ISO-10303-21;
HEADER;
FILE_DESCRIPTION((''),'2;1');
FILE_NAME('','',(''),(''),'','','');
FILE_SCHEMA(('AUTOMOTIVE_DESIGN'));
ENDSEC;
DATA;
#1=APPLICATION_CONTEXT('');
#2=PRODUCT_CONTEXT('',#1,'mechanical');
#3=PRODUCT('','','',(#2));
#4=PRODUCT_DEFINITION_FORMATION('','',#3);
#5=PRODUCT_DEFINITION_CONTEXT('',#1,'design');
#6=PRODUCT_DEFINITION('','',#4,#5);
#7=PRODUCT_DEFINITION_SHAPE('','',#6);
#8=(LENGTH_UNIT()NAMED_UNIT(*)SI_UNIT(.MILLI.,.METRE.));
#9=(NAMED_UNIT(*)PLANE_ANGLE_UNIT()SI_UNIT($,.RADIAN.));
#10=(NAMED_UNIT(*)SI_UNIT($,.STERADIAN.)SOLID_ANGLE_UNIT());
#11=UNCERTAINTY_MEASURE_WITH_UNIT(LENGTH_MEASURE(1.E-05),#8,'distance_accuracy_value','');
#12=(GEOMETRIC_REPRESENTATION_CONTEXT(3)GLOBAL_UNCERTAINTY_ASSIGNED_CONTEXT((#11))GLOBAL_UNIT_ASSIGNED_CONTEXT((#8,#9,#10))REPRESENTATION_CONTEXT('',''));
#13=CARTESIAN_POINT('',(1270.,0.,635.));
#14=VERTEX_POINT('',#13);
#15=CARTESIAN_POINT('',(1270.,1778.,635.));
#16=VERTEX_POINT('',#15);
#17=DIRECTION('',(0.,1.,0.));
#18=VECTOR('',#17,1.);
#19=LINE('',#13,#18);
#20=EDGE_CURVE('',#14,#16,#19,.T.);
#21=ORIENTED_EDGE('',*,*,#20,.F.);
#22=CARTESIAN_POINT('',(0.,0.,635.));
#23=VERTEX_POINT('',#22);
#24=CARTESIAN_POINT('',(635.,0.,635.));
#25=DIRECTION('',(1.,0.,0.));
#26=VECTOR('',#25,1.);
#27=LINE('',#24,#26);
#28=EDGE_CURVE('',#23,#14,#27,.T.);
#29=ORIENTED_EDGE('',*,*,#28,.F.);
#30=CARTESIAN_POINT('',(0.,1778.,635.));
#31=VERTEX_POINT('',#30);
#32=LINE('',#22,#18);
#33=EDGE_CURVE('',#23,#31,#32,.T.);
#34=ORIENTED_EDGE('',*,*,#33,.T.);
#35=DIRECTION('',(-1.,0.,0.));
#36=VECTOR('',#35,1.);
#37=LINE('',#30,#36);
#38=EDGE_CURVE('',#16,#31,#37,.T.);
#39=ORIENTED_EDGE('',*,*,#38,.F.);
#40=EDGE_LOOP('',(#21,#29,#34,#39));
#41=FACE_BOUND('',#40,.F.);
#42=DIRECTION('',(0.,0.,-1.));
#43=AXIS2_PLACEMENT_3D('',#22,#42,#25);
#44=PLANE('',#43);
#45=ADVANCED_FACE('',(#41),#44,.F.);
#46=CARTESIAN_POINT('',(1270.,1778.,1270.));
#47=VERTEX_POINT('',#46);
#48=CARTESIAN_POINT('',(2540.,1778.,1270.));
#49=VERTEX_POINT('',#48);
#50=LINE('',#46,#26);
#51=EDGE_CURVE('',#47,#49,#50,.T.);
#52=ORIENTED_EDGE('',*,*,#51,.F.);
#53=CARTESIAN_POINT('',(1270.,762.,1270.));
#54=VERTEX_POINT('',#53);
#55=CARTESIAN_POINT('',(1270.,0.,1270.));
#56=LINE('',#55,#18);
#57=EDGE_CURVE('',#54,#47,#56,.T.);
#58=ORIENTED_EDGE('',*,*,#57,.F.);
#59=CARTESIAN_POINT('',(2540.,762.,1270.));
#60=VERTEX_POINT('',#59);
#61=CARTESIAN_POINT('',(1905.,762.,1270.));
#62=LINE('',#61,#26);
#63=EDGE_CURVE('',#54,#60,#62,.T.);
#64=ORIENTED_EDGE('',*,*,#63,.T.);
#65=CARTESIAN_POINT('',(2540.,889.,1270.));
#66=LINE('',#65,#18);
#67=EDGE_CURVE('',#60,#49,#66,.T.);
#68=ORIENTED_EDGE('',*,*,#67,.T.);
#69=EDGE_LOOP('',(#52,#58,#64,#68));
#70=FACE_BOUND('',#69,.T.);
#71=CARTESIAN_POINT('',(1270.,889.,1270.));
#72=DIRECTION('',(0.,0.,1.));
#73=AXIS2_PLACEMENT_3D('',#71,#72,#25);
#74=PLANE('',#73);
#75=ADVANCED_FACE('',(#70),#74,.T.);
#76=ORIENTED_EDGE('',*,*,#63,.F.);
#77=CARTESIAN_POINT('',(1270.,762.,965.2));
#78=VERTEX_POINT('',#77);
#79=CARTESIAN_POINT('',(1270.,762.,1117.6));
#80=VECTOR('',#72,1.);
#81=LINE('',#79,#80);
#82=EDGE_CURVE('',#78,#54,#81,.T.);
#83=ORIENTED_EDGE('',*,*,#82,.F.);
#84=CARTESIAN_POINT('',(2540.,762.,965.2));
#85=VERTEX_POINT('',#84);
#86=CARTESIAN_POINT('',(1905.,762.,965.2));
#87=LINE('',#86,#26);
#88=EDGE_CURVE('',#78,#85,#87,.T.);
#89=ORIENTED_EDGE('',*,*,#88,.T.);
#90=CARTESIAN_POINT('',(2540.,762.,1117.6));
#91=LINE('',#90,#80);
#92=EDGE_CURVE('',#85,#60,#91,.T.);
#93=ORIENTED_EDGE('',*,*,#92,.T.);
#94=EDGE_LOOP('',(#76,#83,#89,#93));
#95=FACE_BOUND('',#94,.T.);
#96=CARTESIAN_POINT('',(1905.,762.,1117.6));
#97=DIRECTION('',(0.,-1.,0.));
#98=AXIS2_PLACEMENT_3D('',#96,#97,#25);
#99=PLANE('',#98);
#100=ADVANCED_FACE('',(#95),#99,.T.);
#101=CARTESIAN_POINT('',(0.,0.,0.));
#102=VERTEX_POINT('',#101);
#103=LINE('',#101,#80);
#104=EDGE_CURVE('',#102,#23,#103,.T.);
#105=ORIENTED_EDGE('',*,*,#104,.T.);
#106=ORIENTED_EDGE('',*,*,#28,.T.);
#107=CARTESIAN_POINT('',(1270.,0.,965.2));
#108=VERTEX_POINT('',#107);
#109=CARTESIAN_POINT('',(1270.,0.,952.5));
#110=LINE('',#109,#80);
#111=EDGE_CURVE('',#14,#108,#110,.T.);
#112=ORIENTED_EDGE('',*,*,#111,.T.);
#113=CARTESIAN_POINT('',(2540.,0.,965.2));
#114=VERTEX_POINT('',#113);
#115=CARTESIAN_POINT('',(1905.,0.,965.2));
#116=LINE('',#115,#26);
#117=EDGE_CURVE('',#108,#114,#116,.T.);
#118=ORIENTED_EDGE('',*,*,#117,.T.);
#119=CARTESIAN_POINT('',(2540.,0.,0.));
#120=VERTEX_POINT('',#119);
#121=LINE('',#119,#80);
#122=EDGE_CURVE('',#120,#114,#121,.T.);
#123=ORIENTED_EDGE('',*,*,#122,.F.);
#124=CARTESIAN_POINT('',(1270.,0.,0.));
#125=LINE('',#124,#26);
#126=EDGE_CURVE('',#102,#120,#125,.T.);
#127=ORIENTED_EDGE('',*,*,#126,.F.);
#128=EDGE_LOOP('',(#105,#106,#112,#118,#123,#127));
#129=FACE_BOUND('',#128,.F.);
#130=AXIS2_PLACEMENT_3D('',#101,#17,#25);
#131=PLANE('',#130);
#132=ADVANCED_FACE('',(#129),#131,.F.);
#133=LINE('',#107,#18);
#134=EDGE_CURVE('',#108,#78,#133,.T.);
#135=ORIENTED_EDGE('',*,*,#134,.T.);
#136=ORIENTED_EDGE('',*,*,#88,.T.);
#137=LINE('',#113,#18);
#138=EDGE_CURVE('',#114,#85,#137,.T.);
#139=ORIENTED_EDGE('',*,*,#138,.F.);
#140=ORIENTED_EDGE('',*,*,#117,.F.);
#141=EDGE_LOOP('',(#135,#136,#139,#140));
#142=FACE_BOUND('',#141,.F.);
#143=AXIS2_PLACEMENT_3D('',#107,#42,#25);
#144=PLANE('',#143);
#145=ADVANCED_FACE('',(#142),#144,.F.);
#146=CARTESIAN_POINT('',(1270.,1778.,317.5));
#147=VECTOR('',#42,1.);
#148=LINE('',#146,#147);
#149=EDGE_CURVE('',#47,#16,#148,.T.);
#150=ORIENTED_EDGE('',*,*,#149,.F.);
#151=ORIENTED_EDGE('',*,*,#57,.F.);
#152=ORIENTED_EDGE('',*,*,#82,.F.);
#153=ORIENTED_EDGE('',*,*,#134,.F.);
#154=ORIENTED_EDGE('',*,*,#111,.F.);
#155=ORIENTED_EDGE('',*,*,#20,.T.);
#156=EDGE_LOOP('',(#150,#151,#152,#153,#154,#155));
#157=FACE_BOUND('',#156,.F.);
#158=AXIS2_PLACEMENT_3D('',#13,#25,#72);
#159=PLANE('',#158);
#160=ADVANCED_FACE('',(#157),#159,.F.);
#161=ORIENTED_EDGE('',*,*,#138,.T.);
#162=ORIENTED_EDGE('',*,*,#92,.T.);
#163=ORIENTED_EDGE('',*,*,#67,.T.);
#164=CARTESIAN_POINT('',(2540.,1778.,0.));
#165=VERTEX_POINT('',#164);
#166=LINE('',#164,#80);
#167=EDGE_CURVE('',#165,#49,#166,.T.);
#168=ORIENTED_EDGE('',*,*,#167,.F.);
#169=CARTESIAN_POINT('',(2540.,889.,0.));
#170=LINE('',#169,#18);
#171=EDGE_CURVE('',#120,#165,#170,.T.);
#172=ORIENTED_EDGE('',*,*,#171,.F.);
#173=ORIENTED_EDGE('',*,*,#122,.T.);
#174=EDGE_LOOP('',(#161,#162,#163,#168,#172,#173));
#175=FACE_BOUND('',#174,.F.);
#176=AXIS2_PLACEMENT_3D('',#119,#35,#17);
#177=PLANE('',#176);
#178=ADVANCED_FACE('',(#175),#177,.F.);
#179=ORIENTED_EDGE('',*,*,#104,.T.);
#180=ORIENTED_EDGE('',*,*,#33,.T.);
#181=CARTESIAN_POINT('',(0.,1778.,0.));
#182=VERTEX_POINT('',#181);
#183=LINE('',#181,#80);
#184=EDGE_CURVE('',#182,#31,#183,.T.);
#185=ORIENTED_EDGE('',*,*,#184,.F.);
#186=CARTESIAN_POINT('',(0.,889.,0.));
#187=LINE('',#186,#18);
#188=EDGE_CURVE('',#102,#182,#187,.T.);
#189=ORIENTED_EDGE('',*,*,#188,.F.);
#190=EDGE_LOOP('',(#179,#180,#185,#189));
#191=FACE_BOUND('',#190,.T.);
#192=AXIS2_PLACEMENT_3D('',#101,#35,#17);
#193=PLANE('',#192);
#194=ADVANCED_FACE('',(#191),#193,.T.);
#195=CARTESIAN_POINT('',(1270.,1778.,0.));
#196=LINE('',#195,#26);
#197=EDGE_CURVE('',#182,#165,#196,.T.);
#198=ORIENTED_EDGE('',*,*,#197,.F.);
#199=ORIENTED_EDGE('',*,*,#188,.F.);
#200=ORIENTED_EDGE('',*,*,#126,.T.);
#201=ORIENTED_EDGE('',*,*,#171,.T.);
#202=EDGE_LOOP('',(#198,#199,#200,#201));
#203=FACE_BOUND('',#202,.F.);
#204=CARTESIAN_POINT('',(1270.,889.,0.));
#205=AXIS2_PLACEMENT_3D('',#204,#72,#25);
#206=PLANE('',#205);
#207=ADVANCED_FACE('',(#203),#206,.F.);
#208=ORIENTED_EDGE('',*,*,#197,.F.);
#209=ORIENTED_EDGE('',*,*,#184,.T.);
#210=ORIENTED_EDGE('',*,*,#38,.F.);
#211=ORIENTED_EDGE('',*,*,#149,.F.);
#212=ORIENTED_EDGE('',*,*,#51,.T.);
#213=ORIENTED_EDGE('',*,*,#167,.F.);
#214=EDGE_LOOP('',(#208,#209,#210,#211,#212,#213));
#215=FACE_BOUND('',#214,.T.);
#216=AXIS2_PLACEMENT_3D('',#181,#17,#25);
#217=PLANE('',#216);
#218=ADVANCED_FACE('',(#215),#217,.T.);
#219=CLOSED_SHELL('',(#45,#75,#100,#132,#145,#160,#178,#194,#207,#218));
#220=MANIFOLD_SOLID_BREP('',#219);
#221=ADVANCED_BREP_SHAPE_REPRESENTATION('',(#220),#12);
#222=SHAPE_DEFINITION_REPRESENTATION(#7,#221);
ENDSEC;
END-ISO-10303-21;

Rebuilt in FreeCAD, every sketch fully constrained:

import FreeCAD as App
import Part
import Sketcher
Q = App.Units.Quantity

doc = App.newDocument("Part")
body = doc.addObject("PartDesign::Body", "Body")

# Sketch on XY plane
sketch1 = body.newObject("Sketcher::SketchObject", "Sketch")
sketch1.AttachmentSupport = (doc.getObject("XY_Plane"), [""])
sketch1.MapMode = "FlatFace"
sketch1.addGeometry([
    Part.LineSegment(App.Vector(0, 1778, 0), App.Vector(0, 0, 0)),
    Part.LineSegment(App.Vector(0, 0, 0), App.Vector(2540, 0, 0)),
    Part.LineSegment(App.Vector(2540, 0, 0), App.Vector(2540, 1778, 0)),
    Part.LineSegment(App.Vector(2540, 1778, 0), App.Vector(0, 1778, 0)),
], False)
sketch1.addConstraint([
    Sketcher.Constraint("Coincident", 0, 2, 1, 1),
    Sketcher.Constraint("Coincident", 1, 2, 2, 1),
    Sketcher.Constraint("Coincident", 2, 2, 3, 1),
    Sketcher.Constraint("Coincident", 3, 2, 0, 1),
    Sketcher.Constraint("Vertical", 0),
    Sketcher.Constraint("Horizontal", 1),
    Sketcher.Constraint("Vertical", 2),
    Sketcher.Constraint("Horizontal", 3),
    Sketcher.Constraint("Coincident", 0, 2, -1, 1),
    Sketcher.Constraint("DistanceX", 1, 1, 1, 2, Q("100 in")),
    Sketcher.Constraint("DistanceY", 0, 2, 0, 1, Q("70 in")),
])
pad1 = body.newObject("PartDesign::Pad", "Pad")
pad1.Profile = sketch1
pad1.Length = Q("50 in")

# Sketch on XZ plane
sketch2 = body.newObject("Sketcher::SketchObject", "Sketch001")
sketch2.AttachmentSupport = (doc.getObject("XZ_Plane"), [""])
sketch2.MapMode = "FlatFace"
sketch2.addGeometry([
    Part.LineSegment(App.Vector(0, 1270, 0), App.Vector(0, 635, 0)),
    Part.LineSegment(App.Vector(0, 635, 0), App.Vector(1270, 635, 0)),
    Part.LineSegment(App.Vector(1270, 635, 0), App.Vector(1270, 1270, 0)),
    Part.LineSegment(App.Vector(1270, 1270, 0), App.Vector(0, 1270, 0)),
], False)
sketch2.addConstraint([
    Sketcher.Constraint("Coincident", 0, 2, 1, 1),
    Sketcher.Constraint("Coincident", 1, 2, 2, 1),
    Sketcher.Constraint("Coincident", 2, 2, 3, 1),
    Sketcher.Constraint("Coincident", 3, 2, 0, 1),
    Sketcher.Constraint("Vertical", 0),
    Sketcher.Constraint("Horizontal", 1),
    Sketcher.Constraint("Vertical", 2),
    Sketcher.Constraint("Horizontal", 3),
    Sketcher.Constraint("PointOnObject", 0, 2, -2),
    Sketcher.Constraint("DistanceX", 1, 1, 1, 2, Q("50 in")),
    Sketcher.Constraint("DistanceY", 0, 2, 0, 1, Q("25 in")),
    Sketcher.Constraint("DistanceY", -1, 1, 0, 2, Q("25 in")),
])
pocket1 = body.newObject("PartDesign::Pocket", "Pocket")
pocket1.Profile = sketch2
pocket1.Type = "ThroughAll"

# Sketch on XZ plane
sketch3 = body.newObject("Sketcher::SketchObject", "Sketch002")
sketch3.AttachmentSupport = (doc.getObject("XZ_Plane"), [""])
sketch3.MapMode = "FlatFace"
sketch3.addGeometry([
    Part.LineSegment(App.Vector(1270, 1270, 0), App.Vector(1270, 965, 0)),
    Part.LineSegment(App.Vector(1270, 965, 0), App.Vector(2540, 965, 0)),
    Part.LineSegment(App.Vector(2540, 965, 0), App.Vector(2540, 1270, 0)),
    Part.LineSegment(App.Vector(2540, 1270, 0), App.Vector(1270, 1270, 0)),
], False)
sketch3.addConstraint([
    Sketcher.Constraint("Coincident", 0, 2, 1, 1),
    Sketcher.Constraint("Coincident", 1, 2, 2, 1),
    Sketcher.Constraint("Coincident", 2, 2, 3, 1),
    Sketcher.Constraint("Coincident", 3, 2, 0, 1),
    Sketcher.Constraint("Vertical", 0),
    Sketcher.Constraint("Horizontal", 1),
    Sketcher.Constraint("Vertical", 2),
    Sketcher.Constraint("Horizontal", 3),
    Sketcher.Constraint("DistanceX", 1, 1, 1, 2, Q("50 in")),
    Sketcher.Constraint("DistanceY", 0, 2, 0, 1, Q("12 in")),
    Sketcher.Constraint("DistanceX", -1, 1, 0, 2, Q("50 in")),
    Sketcher.Constraint("DistanceY", -1, 1, 0, 2, Q("38 in")),
])
pocket2 = body.newObject("PartDesign::Pocket", "Pocket001")
pocket2.Profile = sketch3
pocket2.Length = Q("30 in")

doc.recompute()
